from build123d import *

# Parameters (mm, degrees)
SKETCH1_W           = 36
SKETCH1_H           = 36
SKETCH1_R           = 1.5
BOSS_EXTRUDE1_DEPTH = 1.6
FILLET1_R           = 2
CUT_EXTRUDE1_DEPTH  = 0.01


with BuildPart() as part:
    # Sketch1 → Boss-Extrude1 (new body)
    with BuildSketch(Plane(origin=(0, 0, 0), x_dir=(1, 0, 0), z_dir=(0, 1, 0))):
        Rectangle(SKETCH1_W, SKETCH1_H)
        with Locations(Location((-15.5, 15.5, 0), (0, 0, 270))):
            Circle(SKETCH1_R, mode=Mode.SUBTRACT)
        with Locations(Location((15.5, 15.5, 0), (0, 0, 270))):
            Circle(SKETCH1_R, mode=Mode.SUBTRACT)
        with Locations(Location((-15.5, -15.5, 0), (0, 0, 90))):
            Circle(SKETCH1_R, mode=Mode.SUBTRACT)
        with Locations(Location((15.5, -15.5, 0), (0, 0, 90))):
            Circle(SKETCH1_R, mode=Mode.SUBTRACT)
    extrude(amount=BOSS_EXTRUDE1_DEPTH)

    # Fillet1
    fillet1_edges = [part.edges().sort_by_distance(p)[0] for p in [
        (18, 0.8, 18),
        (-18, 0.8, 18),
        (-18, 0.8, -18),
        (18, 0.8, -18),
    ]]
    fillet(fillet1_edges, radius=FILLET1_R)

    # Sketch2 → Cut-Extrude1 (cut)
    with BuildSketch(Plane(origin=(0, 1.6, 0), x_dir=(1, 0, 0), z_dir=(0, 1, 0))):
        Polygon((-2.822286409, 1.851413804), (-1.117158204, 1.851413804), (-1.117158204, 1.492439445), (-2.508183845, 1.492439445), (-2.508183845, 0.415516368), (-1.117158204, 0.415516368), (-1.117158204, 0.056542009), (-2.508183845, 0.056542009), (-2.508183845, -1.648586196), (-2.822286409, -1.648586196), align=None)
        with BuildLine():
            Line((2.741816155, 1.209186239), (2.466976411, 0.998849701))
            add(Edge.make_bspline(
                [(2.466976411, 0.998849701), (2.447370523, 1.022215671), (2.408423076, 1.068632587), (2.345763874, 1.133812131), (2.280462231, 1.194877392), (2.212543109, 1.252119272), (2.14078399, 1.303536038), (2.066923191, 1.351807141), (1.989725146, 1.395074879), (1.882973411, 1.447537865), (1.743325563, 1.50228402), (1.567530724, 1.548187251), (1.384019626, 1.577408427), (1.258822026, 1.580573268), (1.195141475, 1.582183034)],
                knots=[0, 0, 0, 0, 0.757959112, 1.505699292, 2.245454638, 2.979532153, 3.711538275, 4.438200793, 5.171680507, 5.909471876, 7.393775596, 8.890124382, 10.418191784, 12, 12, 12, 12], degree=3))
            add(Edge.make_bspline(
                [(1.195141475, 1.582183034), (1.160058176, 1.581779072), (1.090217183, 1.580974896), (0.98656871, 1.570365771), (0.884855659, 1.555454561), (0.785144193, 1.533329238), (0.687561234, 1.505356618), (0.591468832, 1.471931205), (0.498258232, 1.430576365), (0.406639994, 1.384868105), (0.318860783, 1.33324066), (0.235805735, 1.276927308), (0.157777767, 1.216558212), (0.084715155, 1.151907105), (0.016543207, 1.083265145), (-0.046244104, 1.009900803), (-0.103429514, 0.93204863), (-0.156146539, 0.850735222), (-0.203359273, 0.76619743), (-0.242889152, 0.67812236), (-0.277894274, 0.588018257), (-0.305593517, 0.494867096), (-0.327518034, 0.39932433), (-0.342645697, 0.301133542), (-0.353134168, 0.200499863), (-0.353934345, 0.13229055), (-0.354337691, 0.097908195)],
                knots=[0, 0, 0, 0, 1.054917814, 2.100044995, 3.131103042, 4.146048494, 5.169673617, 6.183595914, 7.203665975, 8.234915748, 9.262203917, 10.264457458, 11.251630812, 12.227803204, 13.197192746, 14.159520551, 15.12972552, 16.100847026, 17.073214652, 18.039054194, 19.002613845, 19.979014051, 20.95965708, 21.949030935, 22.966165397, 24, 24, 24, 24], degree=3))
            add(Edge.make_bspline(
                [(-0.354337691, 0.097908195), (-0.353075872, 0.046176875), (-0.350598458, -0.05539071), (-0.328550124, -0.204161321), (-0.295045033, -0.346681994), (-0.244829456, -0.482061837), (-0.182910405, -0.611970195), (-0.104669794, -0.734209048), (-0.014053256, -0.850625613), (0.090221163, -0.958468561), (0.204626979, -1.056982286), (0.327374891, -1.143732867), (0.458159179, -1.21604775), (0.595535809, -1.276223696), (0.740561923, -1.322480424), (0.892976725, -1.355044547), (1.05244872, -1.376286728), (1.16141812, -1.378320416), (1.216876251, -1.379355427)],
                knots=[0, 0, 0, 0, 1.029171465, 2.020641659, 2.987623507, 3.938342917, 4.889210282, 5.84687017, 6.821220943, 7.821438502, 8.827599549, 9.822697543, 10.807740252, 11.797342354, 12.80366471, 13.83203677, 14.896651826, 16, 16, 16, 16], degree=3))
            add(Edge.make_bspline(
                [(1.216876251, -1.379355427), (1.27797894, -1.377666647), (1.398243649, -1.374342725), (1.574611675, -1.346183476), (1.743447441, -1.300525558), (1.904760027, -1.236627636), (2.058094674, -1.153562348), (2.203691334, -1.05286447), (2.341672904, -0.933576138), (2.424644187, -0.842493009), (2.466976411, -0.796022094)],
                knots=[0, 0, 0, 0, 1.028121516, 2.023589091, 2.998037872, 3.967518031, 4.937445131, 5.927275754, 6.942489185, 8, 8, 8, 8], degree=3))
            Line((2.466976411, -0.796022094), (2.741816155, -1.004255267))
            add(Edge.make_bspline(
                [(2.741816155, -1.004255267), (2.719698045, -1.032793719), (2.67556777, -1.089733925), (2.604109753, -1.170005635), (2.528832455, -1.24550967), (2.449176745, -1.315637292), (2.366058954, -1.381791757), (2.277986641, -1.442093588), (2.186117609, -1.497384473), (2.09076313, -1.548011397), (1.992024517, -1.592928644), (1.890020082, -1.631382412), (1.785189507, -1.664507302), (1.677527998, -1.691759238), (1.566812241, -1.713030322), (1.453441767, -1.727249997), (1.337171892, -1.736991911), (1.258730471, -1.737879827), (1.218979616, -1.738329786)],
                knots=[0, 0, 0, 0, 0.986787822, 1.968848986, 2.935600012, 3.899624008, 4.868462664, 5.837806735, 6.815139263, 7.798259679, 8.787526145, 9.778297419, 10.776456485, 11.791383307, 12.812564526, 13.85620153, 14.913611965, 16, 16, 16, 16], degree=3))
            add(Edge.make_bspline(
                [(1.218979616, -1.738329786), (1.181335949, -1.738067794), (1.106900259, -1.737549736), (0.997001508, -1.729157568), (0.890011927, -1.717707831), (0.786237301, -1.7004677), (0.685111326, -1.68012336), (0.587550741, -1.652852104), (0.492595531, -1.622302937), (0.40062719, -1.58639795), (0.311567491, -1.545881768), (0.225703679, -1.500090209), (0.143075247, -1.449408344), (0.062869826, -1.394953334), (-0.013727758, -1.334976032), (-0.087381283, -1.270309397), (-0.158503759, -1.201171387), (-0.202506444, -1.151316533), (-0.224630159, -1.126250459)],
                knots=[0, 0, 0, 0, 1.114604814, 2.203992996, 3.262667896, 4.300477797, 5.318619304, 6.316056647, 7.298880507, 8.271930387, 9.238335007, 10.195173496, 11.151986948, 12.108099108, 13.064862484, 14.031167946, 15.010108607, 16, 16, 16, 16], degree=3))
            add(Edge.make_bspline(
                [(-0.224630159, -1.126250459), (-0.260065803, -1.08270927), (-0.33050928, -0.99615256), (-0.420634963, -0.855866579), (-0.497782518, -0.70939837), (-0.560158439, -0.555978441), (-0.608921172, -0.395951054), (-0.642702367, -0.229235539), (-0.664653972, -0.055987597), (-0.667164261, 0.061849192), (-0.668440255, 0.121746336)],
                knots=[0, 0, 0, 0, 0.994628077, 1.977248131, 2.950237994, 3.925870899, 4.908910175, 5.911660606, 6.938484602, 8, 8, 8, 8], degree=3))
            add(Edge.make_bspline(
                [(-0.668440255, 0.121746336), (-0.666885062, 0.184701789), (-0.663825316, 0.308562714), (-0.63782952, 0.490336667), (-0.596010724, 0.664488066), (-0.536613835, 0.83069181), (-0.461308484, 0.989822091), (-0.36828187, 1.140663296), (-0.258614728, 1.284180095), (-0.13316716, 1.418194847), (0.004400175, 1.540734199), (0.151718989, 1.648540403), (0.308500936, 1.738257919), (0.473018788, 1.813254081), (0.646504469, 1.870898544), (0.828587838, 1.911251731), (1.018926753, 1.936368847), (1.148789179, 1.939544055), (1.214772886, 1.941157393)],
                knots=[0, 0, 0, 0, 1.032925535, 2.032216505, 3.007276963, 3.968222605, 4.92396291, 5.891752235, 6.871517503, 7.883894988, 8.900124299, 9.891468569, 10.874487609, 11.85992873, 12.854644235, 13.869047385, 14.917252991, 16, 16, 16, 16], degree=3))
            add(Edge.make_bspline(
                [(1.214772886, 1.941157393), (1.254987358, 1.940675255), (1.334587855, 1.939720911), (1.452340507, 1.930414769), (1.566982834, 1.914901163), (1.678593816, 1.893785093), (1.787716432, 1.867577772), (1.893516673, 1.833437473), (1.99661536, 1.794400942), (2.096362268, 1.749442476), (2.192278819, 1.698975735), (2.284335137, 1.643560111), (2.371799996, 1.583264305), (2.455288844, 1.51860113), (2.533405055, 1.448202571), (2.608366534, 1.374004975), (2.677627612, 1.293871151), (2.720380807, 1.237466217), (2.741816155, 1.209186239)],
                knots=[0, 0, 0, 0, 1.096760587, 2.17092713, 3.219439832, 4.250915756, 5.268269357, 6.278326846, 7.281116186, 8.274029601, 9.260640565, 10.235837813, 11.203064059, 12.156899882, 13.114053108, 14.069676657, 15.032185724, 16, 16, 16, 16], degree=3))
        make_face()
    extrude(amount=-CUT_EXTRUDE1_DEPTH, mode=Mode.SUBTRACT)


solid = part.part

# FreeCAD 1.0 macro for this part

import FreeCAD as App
import Part
import Sketcher
Q = App.Units.Quantity


def edges_at(feature, points):
    """Names of the edges that pass closest to the given points."""
    edges = feature.Shape.Edges
    near = lambda p: min(range(len(edges)), key=lambda i: edges[i].distToShape(Part.Vertex(*p))[0])
    return sorted({f"Edge{near(p) + 1}" for p in points})


def add_polygon(sketch, points):
    """Adds a closed chain of lines whose ends are joined by coincident constraints."""
    first, n = sketch.GeometryCount, len(points)
    for a, b in zip(points, points[1:] + points[:1]):
        sketch.addGeometry(Part.LineSegment(App.Vector(*a, 0), App.Vector(*b, 0)), False)
    for i in range(n):
        sketch.addConstraint(Sketcher.Constraint("Coincident", first + i, 2, first + (i + 1) % n, 1))

doc = App.newDocument("Part")
body = doc.addObject("PartDesign::Body", "Body")

# Sketch on XZ plane
sketch1 = body.newObject("Sketcher::SketchObject", "Sketch")
sketch1.AttachmentSupport = (doc.getObject("XZ_Plane"), [""])
sketch1.MapMode = "FlatFace"
add_polygon(sketch1, [(-18, -18), (-18, 18), (18, 18), (18, -18)])  # lines 0-3
sketch1.addGeometry(Part.Circle(App.Vector(-15.5, 15.5, 0), App.Vector(0, 0, 1), 1.5), False)  # 4
sketch1.addGeometry(Part.Circle(App.Vector(15.5, 15.5, 0), App.Vector(0, 0, 1), 1.5), False)  # 5
sketch1.addGeometry(Part.Circle(App.Vector(-15.5, -15.5, 0), App.Vector(0, 0, 1), 1.5), False)  # 6
sketch1.addGeometry(Part.Circle(App.Vector(15.5, -15.5, 0), App.Vector(0, 0, 1), 1.5), False)  # 7
sketch1.addConstraint([
    Sketcher.Constraint("Vertical", 0),
    Sketcher.Constraint("Horizontal", 1),
    Sketcher.Constraint("Vertical", 2),
    Sketcher.Constraint("Horizontal", 3),
    Sketcher.Constraint("Equal", 4, 5),
    Sketcher.Constraint("Equal", 5, 6),
    Sketcher.Constraint("Equal", 6, 7),
    Sketcher.Constraint("Symmetric", 5, 3, 6, 3, -1, 1),
    Sketcher.Constraint("Symmetric", 4, 3, 7, 3, -1, 1),
    Sketcher.Constraint("Symmetric", 0, 2, 2, 2, -1, 1),
    Sketcher.Constraint("Symmetric", 4, 3, 5, 3, -2),
    Sketcher.Constraint("Equal", 3, 0),
    Sketcher.Constraint("Diameter", 4, Q("3 mm")),
    Sketcher.Constraint("DistanceX", 1, 1, 1, 2, Q("36 mm")),
    Sketcher.Constraint("DistanceX", 4, 3, 5, 3, Q("31 mm")),
    Sketcher.Constraint("DistanceY", 6, 3, 4, 3, Q("31 mm")),
])
pad1 = body.newObject("PartDesign::Pad", "Pad")
pad1.Profile = sketch1
pad1.Length = 1.6
pad1.Reversed = True
doc.recompute()

fillet = body.newObject("PartDesign::Fillet", "Fillet")
fillet.Base = (pad1, edges_at(pad1, [
    (18, 0.8, 18),
    (-18, 0.8, 18),
    (-18, 0.8, -18),
    (18, 0.8, -18),
]))
fillet.Radius = 2

# Sketch on XZ plane
sketch2 = body.newObject("Sketcher::SketchObject", "Sketch001")
sketch2.AttachmentSupport = (doc.getObject("XZ_Plane"), [""])
sketch2.MapMode = "FlatFace"
sketch2.AttachmentOffset = App.Placement(App.Vector(0, 0, -1.6), App.Rotation())
add_polygon(sketch2, [(-1.117158, -1.851414), (-2.822286, -1.851414), (-2.822286, 1.648586), (-2.508184, 1.648586), (-2.508184, -0.056542), (-1.117158, -0.056542), (-1.117158, -0.415516), (-2.508184, -0.415516), (-2.508184, -1.492439), (-1.117158, -1.492439)])  # lines 0-9
sketch2.addGeometry(Part.LineSegment(App.Vector(2.466976, -0.99885, 0), App.Vector(2.741816, -1.209186, 0)), False)  # 10
sketch2.addGeometry(Part.BSplineCurve([App.Vector(1.214773, -1.941157, 0), App.Vector(1.254987, -1.940675, 0), App.Vector(1.334588, -1.939721, 0), App.Vector(1.452341, -1.930415, 0), App.Vector(1.566983, -1.914901, 0), App.Vector(1.678594, -1.893785, 0), App.Vector(1.787716, -1.867578, 0), App.Vector(1.893517, -1.833437, 0), App.Vector(1.996615, -1.794401, 0), App.Vector(2.096362, -1.749442, 0), App.Vector(2.192279, -1.698976, 0), App.Vector(2.284335, -1.64356, 0), App.Vector(2.3718, -1.583264, 0), App.Vector(2.455289, -1.518601, 0), App.Vector(2.533405, -1.448203, 0), App.Vector(2.608367, -1.374005, 0), App.Vector(2.677628, -1.293871, 0), App.Vector(2.720381, -1.237466, 0), App.Vector(2.741816, -1.209186, 0)], [4, 1, 1, 1, 1, 1, 1, 1, 1, 1, 1, 1, 1, 1, 1, 1, 4], [0, 1.096760587, 2.17092713, 3.219439832, 4.250915756, 5.268269357, 6.278326846, 7.281116186, 8.274029601, 9.260640565, 10.235837813, 11.203064059, 12.156899882, 13.114053108, 14.069676657, 15.032185724, 16], False, 3, [1, 1, 1, 1, 1, 1, 1, 1, 1, 1, 1, 1, 1, 1, 1, 1, 1, 1, 1], False), False)  # 11
sketch2.addGeometry(Part.BSplineCurve([App.Vector(-0.66844, -0.121746, 0), App.Vector(-0.666885, -0.184702, 0), App.Vector(-0.663825, -0.308563, 0), App.Vector(-0.63783, -0.490337, 0), App.Vector(-0.596011, -0.664488, 0), App.Vector(-0.536614, -0.830692, 0), App.Vector(-0.461308, -0.989822, 0), App.Vector(-0.368282, -1.140663, 0), App.Vector(-0.258615, -1.28418, 0), App.Vector(-0.133167, -1.418195, 0), App.Vector(0.0044, -1.540734, 0), App.Vector(0.151719, -1.64854, 0), App.Vector(0.308501, -1.738258, 0), App.Vector(0.473019, -1.813254, 0), App.Vector(0.646504, -1.870899, 0), App.Vector(0.828588, -1.911252, 0), App.Vector(1.018927, -1.936369, 0), App.Vector(1.148789, -1.939544, 0), App.Vector(1.214773, -1.941157, 0)], [4, 1, 1, 1, 1, 1, 1, 1, 1, 1, 1, 1, 1, 1, 1, 1, 4], [0, 1.032925535, 2.032216505, 3.007276963, 3.968222605, 4.92396291, 5.891752235, 6.871517503, 7.883894988, 8.900124299, 9.891468569, 10.874487609, 11.85992873, 12.854644235, 13.869047385, 14.917252991, 16], False, 3, [1, 1, 1, 1, 1, 1, 1, 1, 1, 1, 1, 1, 1, 1, 1, 1, 1, 1, 1], False), False)  # 12
sketch2.addGeometry(Part.BSplineCurve([App.Vector(-0.22463, 1.12625, 0), App.Vector(-0.260066, 1.082709, 0), App.Vector(-0.330509, 0.996153, 0), App.Vector(-0.420635, 0.855867, 0), App.Vector(-0.497783, 0.709398, 0), App.Vector(-0.560158, 0.555978, 0), App.Vector(-0.608921, 0.395951, 0), App.Vector(-0.642702, 0.229236, 0), App.Vector(-0.664654, 0.055988, 0), App.Vector(-0.667164, -0.061849, 0), App.Vector(-0.66844, -0.121746, 0)], [4, 1, 1, 1, 1, 1, 1, 1, 4], [0, 0.994628077, 1.977248131, 2.950237994, 3.925870899, 4.908910175, 5.911660606, 6.938484602, 8], False, 3, [1, 1, 1, 1, 1, 1, 1, 1, 1, 1, 1], False), False)  # 13
sketch2.addGeometry(Part.BSplineCurve([App.Vector(1.21898, 1.73833, 0), App.Vector(1.181336, 1.738068, 0), App.Vector(1.1069, 1.73755, 0), App.Vector(0.997002, 1.729158, 0), App.Vector(0.890012, 1.717708, 0), App.Vector(0.786237, 1.700468, 0), App.Vector(0.685111, 1.680123, 0), App.Vector(0.587551, 1.652852, 0), App.Vector(0.492596, 1.622303, 0), App.Vector(0.400627, 1.586398, 0), App.Vector(0.311567, 1.545882, 0), App.Vector(0.225704, 1.50009, 0), App.Vector(0.143075, 1.449408, 0), App.Vector(0.06287, 1.394953, 0), App.Vector(-0.013728, 1.334976, 0), App.Vector(-0.087381, 1.270309, 0), App.Vector(-0.158504, 1.201171, 0), App.Vector(-0.202506, 1.151317, 0), App.Vector(-0.22463, 1.12625, 0)], [4, 1, 1, 1, 1, 1, 1, 1, 1, 1, 1, 1, 1, 1, 1, 1, 4], [0, 1.114604814, 2.203992996, 3.262667896, 4.300477797, 5.318619304, 6.316056647, 7.298880507, 8.271930387, 9.238335007, 10.195173496, 11.151986948, 12.108099108, 13.064862484, 14.031167946, 15.010108607, 16], False, 3, [1, 1, 1, 1, 1, 1, 1, 1, 1, 1, 1, 1, 1, 1, 1, 1, 1, 1, 1], False), False)  # 14
sketch2.addGeometry(Part.BSplineCurve([App.Vector(2.741816, 1.004255, 0), App.Vector(2.719698, 1.032794, 0), App.Vector(2.675568, 1.089734, 0), App.Vector(2.60411, 1.170006, 0), App.Vector(2.528832, 1.24551, 0), App.Vector(2.449177, 1.315637, 0), App.Vector(2.366059, 1.381792, 0), App.Vector(2.277987, 1.442094, 0), App.Vector(2.186118, 1.497384, 0), App.Vector(2.090763, 1.548011, 0), App.Vector(1.992025, 1.592929, 0), App.Vector(1.89002, 1.631382, 0), App.Vector(1.78519, 1.664507, 0), App.Vector(1.677528, 1.691759, 0), App.Vector(1.566812, 1.71303, 0), App.Vector(1.453442, 1.72725, 0), App.Vector(1.337172, 1.736992, 0), App.Vector(1.25873, 1.73788, 0), App.Vector(1.21898, 1.73833, 0)], [4, 1, 1, 1, 1, 1, 1, 1, 1, 1, 1, 1, 1, 1, 1, 1, 4], [0, 0.986787822, 1.968848986, 2.935600012, 3.899624008, 4.868462664, 5.837806735, 6.815139263, 7.798259679, 8.787526145, 9.778297419, 10.776456485, 11.791383307, 12.812564526, 13.85620153, 14.913611965, 16], False, 3, [1, 1, 1, 1, 1, 1, 1, 1, 1, 1, 1, 1, 1, 1, 1, 1, 1, 1, 1], False), False)  # 15
sketch2.addGeometry(Part.LineSegment(App.Vector(2.741816, 1.004255, 0), App.Vector(2.466976, 0.796022, 0)), False)  # 16
sketch2.addGeometry(Part.BSplineCurve([App.Vector(1.216876, 1.379355, 0), App.Vector(1.277979, 1.377667, 0), App.Vector(1.398244, 1.374343, 0), App.Vector(1.574612, 1.346183, 0), App.Vector(1.743447, 1.300526, 0), App.Vector(1.90476, 1.236628, 0), App.Vector(2.058095, 1.153562, 0), App.Vector(2.203691, 1.052864, 0), App.Vector(2.341673, 0.933576, 0), App.Vector(2.424644, 0.842493, 0), App.Vector(2.466976, 0.796022, 0)], [4, 1, 1, 1, 1, 1, 1, 1, 4], [0, 1.028121516, 2.023589091, 2.998037872, 3.967518031, 4.937445131, 5.927275754, 6.942489185, 8], False, 3, [1, 1, 1, 1, 1, 1, 1, 1, 1, 1, 1], False), False)  # 17
sketch2.addGeometry(Part.BSplineCurve([App.Vector(-0.354338, -0.097908, 0), App.Vector(-0.353076, -0.046177, 0), App.Vector(-0.350598, 0.055391, 0), App.Vector(-0.32855, 0.204161, 0), App.Vector(-0.295045, 0.346682, 0), App.Vector(-0.244829, 0.482062, 0), App.Vector(-0.18291, 0.61197, 0), App.Vector(-0.10467, 0.734209, 0), App.Vector(-0.014053, 0.850626, 0), App.Vector(0.090221, 0.958469, 0), App.Vector(0.204627, 1.056982, 0), App.Vector(0.327375, 1.143733, 0), App.Vector(0.458159, 1.216048, 0), App.Vector(0.595536, 1.276224, 0), App.Vector(0.740562, 1.32248, 0), App.Vector(0.892977, 1.355045, 0), App.Vector(1.052449, 1.376287, 0), App.Vector(1.161418, 1.37832, 0), App.Vector(1.216876, 1.379355, 0)], [4, 1, 1, 1, 1, 1, 1, 1, 1, 1, 1, 1, 1, 1, 1, 1, 4], [0, 1.029171465, 2.020641659, 2.987623507, 3.938342917, 4.889210282, 5.84687017, 6.821220943, 7.821438502, 8.827599549, 9.822697543, 10.807740252, 11.797342354, 12.80366471, 13.83203677, 14.896651826, 16], False, 3, [1, 1, 1, 1, 1, 1, 1, 1, 1, 1, 1, 1, 1, 1, 1, 1, 1, 1, 1], False), False)  # 18
sketch2.addGeometry(Part.BSplineCurve([App.Vector(1.195141, -1.582183, 0), App.Vector(1.160058, -1.581779, 0), App.Vector(1.090217, -1.580975, 0), App.Vector(0.986569, -1.570366, 0), App.Vector(0.884856, -1.555455, 0), App.Vector(0.785144, -1.533329, 0), App.Vector(0.687561, -1.505357, 0), App.Vector(0.591469, -1.471931, 0), App.Vector(0.498258, -1.430576, 0), App.Vector(0.40664, -1.384868, 0), App.Vector(0.318861, -1.333241, 0), App.Vector(0.235806, -1.276927, 0), App.Vector(0.157778, -1.216558, 0), App.Vector(0.084715, -1.151907, 0), App.Vector(0.016543, -1.083265, 0), App.Vector(-0.046244, -1.009901, 0), App.Vector(-0.10343, -0.932049, 0), App.Vector(-0.156147, -0.850735, 0), App.Vector(-0.203359, -0.766197, 0), App.Vector(-0.242889, -0.678122, 0), App.Vector(-0.277894, -0.588018, 0), App.Vector(-0.305594, -0.494867, 0), App.Vector(-0.327518, -0.399324, 0), App.Vector(-0.342646, -0.301134, 0), App.Vector(-0.353134, -0.2005, 0), App.Vector(-0.353934, -0.132291, 0), App.Vector(-0.354338, -0.097908, 0)], [4, 1, 1, 1, 1, 1, 1, 1, 1, 1, 1, 1, 1, 1, 1, 1, 1, 1, 1, 1, 1, 1, 1, 1, 4], [0, 1.054917814, 2.100044995, 3.131103042, 4.146048494, 5.169673617, 6.183595914, 7.203665975, 8.234915748, 9.262203917, 10.264457458, 11.251630812, 12.227803204, 13.197192746, 14.159520551, 15.12972552, 16.100847026, 17.073214652, 18.039054194, 19.002613845, 19.979014051, 20.95965708, 21.949030935, 22.966165397, 24], False, 3, [1, 1, 1, 1, 1, 1, 1, 1, 1, 1, 1, 1, 1, 1, 1, 1, 1, 1, 1, 1, 1, 1, 1, 1, 1, 1, 1], False), False)  # 19
sketch2.addGeometry(Part.BSplineCurve([App.Vector(2.466976, -0.99885, 0), App.Vector(2.447371, -1.022216, 0), App.Vector(2.408423, -1.068633, 0), App.Vector(2.345764, -1.133812, 0), App.Vector(2.280462, -1.194877, 0), App.Vector(2.212543, -1.252119, 0), App.Vector(2.140784, -1.303536, 0), App.Vector(2.066923, -1.351807, 0), App.Vector(1.989725, -1.395075, 0), App.Vector(1.882973, -1.447538, 0), App.Vector(1.743326, -1.502284, 0), App.Vector(1.567531, -1.548187, 0), App.Vector(1.38402, -1.577408, 0), App.Vector(1.258822, -1.580573, 0), App.Vector(1.195141, -1.582183, 0)], [4, 1, 1, 1, 1, 1, 1, 1, 1, 1, 1, 1, 4], [0, 0.757959112, 1.505699292, 2.245454638, 2.979532153, 3.711538275, 4.438200793, 5.171680507, 5.909471876, 7.393775596, 8.890124382, 10.418191784, 12], False, 3, [1, 1, 1, 1, 1, 1, 1, 1, 1, 1, 1, 1, 1, 1, 1], False), False)  # 20
sketch2.addConstraint([
    Sketcher.Constraint("Block", 11),
    Sketcher.Constraint("Block", 12),
    Sketcher.Constraint("Block", 13),
    Sketcher.Constraint("Block", 14),
    Sketcher.Constraint("Block", 15),
    Sketcher.Constraint("Block", 17),
    Sketcher.Constraint("Block", 18),
    Sketcher.Constraint("Block", 19),
    Sketcher.Constraint("Block", 20),
    Sketcher.Constraint("Coincident", 10, 2, 11, 2),
    Sketcher.Constraint("Coincident", 15, 1, 16, 1),
    Sketcher.Constraint("Coincident", 16, 2, 17, 2),
    Sketcher.Constraint("Coincident", 20, 1, 10, 1),
    Sketcher.Constraint("Horizontal", 0),
    Sketcher.Constraint("Vertical", 1),
    Sketcher.Constraint("Horizontal", 2),
    Sketcher.Constraint("Vertical", 3),
    Sketcher.Constraint("Horizontal", 4),
    Sketcher.Constraint("Vertical", 5),
    Sketcher.Constraint("Horizontal", 6),
    Sketcher.Constraint("Vertical", 7),
    Sketcher.Constraint("Horizontal", 8),
    Sketcher.Constraint("Vertical", 9),
    Sketcher.Constraint("Vertical", 3, 2, 6, 2),
    Sketcher.Constraint("Vertical", 5, 2, 8, 2),
    Sketcher.Constraint("Equal", 0, 3),
    Sketcher.Constraint("Equal", 5, 9),
    Sketcher.Constraint("DistanceY", 1, 1, 1, 2, Q("3.5 mm")),
    Sketcher.Constraint("DistanceX", 7, 2, 10, 2, Q("5.25 mm")),
    Sketcher.Constraint("DistanceX", 0, 2, 0, 1, Q("1.705128 mm")),
    Sketcher.Constraint("DistanceX", 2, 1, 2, 2, Q("0.314103 mm")),
    Sketcher.Constraint("DistanceY", 5, 2, 5, 1, Q("0.358974 mm")),
    Sketcher.Constraint("DistanceY", 7, 2, -1, 1, Q("1.492439 mm")),
])
pocket1 = body.newObject("PartDesign::Pocket", "Pocket")
pocket1.Profile = sketch2
pocket1.Length = 0.01
pocket1.Reversed = True

doc.recompute()
